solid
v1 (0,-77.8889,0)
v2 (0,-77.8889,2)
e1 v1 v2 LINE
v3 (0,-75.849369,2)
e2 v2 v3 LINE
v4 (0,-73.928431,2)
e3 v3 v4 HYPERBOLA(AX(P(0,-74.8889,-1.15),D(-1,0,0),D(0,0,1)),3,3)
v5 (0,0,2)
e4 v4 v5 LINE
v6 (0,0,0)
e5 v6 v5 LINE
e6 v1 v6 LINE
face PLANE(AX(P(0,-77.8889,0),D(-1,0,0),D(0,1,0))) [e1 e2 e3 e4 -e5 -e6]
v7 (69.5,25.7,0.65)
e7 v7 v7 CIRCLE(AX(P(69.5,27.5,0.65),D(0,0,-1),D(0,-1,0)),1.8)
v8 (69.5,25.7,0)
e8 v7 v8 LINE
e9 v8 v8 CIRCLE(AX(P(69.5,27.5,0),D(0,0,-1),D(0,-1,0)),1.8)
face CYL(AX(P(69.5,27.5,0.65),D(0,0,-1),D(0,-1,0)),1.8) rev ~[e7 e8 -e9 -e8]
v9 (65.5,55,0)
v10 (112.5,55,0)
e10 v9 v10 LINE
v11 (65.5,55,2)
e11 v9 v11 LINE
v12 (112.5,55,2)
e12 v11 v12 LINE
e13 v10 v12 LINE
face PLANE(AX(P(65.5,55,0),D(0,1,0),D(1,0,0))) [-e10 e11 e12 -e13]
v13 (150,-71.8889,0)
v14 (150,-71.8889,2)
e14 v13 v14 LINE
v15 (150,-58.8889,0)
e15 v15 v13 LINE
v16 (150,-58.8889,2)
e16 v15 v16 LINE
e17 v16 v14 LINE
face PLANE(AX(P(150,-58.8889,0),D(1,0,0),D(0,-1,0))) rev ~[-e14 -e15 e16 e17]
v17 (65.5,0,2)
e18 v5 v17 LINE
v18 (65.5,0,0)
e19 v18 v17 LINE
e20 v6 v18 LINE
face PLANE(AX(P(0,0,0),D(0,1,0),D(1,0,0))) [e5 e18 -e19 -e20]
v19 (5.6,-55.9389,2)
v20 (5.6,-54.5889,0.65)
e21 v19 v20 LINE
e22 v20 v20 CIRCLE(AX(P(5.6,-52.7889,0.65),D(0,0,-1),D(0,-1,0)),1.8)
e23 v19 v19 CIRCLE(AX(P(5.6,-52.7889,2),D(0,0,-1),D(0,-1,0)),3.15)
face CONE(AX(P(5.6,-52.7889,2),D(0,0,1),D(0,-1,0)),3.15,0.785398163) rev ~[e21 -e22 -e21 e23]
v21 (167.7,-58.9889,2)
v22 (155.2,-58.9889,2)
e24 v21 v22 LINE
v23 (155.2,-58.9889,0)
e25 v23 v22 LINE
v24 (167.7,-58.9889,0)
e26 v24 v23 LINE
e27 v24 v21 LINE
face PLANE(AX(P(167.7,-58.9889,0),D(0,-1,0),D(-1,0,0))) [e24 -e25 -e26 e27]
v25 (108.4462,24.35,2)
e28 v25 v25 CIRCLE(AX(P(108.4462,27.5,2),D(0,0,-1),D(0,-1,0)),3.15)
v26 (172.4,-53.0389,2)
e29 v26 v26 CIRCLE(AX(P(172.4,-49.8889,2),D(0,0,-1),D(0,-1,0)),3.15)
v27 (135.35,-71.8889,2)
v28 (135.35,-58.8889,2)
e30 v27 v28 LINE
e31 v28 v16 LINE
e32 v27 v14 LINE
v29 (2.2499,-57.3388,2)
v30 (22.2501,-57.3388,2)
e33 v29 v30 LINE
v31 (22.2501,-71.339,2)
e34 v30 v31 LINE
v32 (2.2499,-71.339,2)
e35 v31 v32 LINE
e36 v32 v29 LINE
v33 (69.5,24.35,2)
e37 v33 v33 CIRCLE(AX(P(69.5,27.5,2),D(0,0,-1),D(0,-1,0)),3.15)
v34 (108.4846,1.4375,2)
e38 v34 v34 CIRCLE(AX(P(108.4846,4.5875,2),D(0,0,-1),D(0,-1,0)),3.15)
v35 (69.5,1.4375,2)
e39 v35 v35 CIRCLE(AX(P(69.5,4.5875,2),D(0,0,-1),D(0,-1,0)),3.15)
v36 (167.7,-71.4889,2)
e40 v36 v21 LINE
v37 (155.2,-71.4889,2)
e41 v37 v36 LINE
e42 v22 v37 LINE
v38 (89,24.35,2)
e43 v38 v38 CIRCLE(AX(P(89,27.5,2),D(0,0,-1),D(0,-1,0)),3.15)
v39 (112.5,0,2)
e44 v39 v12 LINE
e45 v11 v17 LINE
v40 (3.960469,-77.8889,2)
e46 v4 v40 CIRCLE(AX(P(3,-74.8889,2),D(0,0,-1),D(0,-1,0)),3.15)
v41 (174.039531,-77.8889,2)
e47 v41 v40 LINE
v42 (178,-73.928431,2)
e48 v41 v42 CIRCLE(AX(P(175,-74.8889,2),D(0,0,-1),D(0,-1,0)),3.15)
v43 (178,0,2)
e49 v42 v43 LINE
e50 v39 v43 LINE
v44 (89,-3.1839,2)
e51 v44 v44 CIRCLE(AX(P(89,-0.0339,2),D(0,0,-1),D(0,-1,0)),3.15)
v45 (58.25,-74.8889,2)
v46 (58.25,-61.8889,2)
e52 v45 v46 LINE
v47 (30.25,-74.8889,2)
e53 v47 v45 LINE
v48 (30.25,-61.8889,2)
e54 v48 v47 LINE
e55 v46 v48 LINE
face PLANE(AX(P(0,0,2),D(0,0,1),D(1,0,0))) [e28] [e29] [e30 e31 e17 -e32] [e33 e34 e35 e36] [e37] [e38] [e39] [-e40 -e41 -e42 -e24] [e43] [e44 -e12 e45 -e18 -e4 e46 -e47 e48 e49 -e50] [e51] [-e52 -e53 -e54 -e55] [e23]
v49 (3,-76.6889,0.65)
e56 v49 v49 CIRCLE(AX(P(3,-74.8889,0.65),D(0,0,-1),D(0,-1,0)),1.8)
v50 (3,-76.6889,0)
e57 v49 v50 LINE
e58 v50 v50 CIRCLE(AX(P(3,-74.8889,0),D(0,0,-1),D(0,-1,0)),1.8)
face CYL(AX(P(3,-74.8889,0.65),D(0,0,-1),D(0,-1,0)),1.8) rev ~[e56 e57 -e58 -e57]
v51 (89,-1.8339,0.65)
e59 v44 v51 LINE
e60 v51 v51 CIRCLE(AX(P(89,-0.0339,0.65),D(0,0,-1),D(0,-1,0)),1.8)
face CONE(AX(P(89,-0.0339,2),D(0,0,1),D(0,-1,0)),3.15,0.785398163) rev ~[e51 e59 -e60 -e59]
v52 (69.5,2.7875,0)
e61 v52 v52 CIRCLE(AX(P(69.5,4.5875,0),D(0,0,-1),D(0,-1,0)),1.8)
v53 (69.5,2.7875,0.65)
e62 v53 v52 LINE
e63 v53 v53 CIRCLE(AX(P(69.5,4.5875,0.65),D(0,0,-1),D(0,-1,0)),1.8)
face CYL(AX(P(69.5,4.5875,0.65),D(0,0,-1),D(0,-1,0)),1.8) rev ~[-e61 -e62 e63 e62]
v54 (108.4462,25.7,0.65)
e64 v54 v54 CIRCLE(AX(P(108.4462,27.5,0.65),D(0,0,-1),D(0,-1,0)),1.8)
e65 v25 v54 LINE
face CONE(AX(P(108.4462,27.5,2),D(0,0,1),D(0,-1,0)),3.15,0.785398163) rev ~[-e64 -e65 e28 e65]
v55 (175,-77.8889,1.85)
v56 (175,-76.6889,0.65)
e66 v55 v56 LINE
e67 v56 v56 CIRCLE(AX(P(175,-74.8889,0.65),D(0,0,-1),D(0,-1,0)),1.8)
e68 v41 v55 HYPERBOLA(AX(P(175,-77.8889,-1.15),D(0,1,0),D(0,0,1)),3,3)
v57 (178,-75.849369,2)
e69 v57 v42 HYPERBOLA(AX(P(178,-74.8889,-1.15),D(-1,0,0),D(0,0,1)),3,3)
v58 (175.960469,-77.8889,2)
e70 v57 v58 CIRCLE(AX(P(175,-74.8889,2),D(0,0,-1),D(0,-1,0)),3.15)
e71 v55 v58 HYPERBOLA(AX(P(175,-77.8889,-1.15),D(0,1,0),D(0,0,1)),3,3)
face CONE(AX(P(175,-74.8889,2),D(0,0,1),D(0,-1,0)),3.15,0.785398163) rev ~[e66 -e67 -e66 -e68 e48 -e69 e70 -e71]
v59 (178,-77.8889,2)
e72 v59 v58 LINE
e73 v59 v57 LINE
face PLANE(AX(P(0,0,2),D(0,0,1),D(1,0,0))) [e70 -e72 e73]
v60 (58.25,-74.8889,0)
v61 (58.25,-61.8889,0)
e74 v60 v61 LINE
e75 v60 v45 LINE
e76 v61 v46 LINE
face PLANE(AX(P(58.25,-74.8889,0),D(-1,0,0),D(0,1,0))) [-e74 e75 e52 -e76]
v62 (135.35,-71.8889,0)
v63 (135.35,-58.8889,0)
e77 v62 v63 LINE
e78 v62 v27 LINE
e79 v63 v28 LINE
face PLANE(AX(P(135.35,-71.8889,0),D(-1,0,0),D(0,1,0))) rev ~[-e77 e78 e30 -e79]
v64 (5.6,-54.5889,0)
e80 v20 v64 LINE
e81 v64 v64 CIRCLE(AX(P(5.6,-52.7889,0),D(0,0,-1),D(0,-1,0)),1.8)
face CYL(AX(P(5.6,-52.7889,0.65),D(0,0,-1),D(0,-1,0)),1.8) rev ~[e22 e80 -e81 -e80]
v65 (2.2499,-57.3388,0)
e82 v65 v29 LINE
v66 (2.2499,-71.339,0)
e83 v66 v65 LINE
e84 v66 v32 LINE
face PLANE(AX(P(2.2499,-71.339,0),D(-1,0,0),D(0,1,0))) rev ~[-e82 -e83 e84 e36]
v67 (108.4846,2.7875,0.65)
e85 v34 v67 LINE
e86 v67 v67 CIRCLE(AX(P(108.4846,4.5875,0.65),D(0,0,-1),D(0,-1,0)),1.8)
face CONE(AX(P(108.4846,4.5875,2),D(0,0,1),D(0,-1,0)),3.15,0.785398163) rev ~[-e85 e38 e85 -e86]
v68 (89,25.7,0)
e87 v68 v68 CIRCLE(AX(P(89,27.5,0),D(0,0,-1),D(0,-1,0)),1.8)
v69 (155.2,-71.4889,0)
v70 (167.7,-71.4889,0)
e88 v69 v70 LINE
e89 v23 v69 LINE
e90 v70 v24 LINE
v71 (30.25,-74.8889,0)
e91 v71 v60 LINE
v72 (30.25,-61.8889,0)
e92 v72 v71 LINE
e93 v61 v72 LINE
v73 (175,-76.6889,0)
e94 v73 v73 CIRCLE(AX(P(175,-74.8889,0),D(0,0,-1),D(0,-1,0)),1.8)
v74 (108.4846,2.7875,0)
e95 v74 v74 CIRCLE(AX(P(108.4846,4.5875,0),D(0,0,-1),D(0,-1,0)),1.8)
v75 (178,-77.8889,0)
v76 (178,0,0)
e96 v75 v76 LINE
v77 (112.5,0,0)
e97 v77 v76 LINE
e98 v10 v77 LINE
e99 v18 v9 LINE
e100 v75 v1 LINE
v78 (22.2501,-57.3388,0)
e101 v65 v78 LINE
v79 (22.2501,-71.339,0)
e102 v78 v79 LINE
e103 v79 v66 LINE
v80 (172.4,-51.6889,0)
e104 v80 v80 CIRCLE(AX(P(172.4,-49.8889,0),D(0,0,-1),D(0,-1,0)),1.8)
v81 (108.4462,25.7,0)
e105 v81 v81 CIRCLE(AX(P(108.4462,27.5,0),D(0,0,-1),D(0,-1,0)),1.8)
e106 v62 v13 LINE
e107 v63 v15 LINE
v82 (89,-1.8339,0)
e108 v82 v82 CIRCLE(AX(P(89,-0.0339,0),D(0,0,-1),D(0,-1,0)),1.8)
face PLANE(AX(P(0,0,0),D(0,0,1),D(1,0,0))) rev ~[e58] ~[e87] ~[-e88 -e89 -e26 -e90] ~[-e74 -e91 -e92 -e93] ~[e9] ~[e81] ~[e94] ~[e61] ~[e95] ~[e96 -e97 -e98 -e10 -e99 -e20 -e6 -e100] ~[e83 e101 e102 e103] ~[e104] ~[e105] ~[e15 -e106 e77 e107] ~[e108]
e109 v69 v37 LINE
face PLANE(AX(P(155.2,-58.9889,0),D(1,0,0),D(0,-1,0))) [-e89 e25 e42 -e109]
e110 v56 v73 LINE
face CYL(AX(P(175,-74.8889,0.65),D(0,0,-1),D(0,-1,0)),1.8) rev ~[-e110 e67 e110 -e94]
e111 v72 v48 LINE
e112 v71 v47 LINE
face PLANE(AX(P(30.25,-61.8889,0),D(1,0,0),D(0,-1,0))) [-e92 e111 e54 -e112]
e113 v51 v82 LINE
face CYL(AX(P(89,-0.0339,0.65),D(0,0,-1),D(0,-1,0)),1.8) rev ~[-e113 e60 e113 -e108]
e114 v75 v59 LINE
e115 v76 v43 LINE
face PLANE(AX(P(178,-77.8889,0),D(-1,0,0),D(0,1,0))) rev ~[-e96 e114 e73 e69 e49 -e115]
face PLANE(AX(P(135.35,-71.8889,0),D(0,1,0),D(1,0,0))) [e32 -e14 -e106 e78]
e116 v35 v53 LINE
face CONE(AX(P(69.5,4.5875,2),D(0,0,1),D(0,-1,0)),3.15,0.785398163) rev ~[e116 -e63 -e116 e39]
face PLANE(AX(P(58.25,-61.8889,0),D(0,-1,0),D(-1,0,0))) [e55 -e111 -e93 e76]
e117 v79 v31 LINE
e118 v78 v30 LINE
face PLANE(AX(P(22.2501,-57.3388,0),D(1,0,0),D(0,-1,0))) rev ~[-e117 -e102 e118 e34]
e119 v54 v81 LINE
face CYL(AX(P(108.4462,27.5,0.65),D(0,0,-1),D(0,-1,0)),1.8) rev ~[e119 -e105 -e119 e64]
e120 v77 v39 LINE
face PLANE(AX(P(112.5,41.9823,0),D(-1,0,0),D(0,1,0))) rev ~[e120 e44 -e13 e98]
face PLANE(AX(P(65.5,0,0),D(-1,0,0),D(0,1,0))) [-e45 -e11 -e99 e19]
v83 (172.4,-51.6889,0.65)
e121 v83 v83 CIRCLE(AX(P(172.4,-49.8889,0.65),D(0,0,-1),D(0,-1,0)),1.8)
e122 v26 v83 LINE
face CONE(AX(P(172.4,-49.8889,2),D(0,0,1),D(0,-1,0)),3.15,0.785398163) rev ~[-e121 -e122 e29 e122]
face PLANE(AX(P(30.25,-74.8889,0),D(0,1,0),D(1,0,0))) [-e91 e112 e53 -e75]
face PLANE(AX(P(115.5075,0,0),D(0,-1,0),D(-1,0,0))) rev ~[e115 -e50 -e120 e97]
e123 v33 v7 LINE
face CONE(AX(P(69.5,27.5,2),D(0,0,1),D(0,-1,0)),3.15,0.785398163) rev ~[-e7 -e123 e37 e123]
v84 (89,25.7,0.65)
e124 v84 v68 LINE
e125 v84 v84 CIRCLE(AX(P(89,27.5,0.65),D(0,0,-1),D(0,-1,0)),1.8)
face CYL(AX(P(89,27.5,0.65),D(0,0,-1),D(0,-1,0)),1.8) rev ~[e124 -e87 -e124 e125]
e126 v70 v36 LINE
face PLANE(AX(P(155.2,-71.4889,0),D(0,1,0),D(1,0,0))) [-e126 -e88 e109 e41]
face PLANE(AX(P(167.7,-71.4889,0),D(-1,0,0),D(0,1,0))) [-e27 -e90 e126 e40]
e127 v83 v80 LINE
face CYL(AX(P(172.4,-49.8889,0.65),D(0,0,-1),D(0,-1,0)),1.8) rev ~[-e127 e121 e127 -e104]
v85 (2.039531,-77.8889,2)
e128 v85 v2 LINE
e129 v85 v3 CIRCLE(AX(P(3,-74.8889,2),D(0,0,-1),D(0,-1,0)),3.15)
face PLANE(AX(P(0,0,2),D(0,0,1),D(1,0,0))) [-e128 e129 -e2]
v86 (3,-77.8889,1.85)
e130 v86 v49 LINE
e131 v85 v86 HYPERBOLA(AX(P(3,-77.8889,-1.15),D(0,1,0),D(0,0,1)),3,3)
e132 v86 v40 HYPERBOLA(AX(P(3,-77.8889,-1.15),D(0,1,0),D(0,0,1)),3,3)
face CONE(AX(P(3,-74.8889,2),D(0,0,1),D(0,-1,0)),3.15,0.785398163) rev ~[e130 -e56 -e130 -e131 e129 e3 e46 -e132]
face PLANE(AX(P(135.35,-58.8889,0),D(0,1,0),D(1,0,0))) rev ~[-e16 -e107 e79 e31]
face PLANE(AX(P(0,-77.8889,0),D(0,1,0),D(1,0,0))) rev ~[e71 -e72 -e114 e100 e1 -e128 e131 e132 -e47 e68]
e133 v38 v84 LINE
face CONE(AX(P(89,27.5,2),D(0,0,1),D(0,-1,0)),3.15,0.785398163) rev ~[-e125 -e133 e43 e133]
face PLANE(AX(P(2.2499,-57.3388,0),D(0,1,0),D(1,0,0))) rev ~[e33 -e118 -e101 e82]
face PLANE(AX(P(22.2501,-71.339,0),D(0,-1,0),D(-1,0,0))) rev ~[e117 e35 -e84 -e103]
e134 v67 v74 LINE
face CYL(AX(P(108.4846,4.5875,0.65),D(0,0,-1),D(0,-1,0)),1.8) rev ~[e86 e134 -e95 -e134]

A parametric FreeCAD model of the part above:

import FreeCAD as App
import Part
import Sketcher
Q = App.Units.Quantity

doc = App.newDocument("Part")
body = doc.addObject("PartDesign::Body", "Body")

sketch1 = doc.addObject("Sketcher::SketchObject", "Sketch")
body.addObject(sketch1)
sketch1.AttachmentSupport = (doc.XY_Plane, [""])
sketch1.MapMode = "FlatFace"
sketch1.addGeometry([
    Part.LineSegment(App.Vector(0, -78, 0), App.Vector(178, -78, 0)),
    Part.LineSegment(App.Vector(178, -78, 0), App.Vector(178, 0, 0)),
    Part.LineSegment(App.Vector(178, 0, 0), App.Vector(112, 0, 0)),
    Part.LineSegment(App.Vector(112, 0, 0), App.Vector(112, 55, 0)),
    Part.LineSegment(App.Vector(112, 55, 0), App.Vector(66, 55, 0)),
    Part.LineSegment(App.Vector(66, 55, 0), App.Vector(66, 0, 0)),
    Part.LineSegment(App.Vector(66, 0, 0), App.Vector(0, 0, 0)),
    Part.LineSegment(App.Vector(0, 0, 0), App.Vector(0, -78, 0)),
    Part.LineSegment(App.Vector(150, -72, 0), App.Vector(135, -72, 0)),
    Part.LineSegment(App.Vector(135, -72, 0), App.Vector(135, -59, 0)),
    Part.LineSegment(App.Vector(135, -59, 0), App.Vector(150, -59, 0)),
    Part.LineSegment(App.Vector(150, -59, 0), App.Vector(150, -72, 0)),
    Part.LineSegment(App.Vector(22, -71, 0), App.Vector(2, -71, 0)),
    Part.LineSegment(App.Vector(2, -71, 0), App.Vector(2, -57, 0)),
    Part.LineSegment(App.Vector(2, -57, 0), App.Vector(22, -57, 0)),
    Part.LineSegment(App.Vector(22, -57, 0), App.Vector(22, -71, 0)),
    Part.LineSegment(App.Vector(30, -75, 0), App.Vector(30, -62, 0)),
    Part.LineSegment(App.Vector(30, -62, 0), App.Vector(58, -62, 0)),
    Part.LineSegment(App.Vector(58, -62, 0), App.Vector(58, -75, 0)),
    Part.LineSegment(App.Vector(58, -75, 0), App.Vector(30, -75, 0)),
    Part.LineSegment(App.Vector(168, -59, 0), App.Vector(168, -71, 0)),
    Part.LineSegment(App.Vector(168, -71, 0), App.Vector(155, -71, 0)),
    Part.LineSegment(App.Vector(155, -71, 0), App.Vector(155, -59, 0)),
    Part.LineSegment(App.Vector(155, -59, 0), App.Vector(168, -59, 0)),
], False)
sketch1.addConstraint([
    Sketcher.Constraint("Coincident", 0, 2, 1, 1),
    Sketcher.Constraint("Coincident", 1, 2, 2, 1),
    Sketcher.Constraint("Coincident", 2, 2, 3, 1),
    Sketcher.Constraint("Coincident", 3, 2, 4, 1),
    Sketcher.Constraint("Coincident", 4, 2, 5, 1),
    Sketcher.Constraint("Coincident", 5, 2, 6, 1),
    Sketcher.Constraint("Coincident", 6, 2, 7, 1),
    Sketcher.Constraint("Coincident", 7, 2, 0, 1),
    Sketcher.Constraint("Coincident", 8, 2, 9, 1),
    Sketcher.Constraint("Coincident", 9, 2, 10, 1),
    Sketcher.Constraint("Coincident", 10, 2, 11, 1),
    Sketcher.Constraint("Coincident", 11, 2, 8, 1),
    Sketcher.Constraint("Coincident", 12, 2, 13, 1),
    Sketcher.Constraint("Coincident", 13, 2, 14, 1),
    Sketcher.Constraint("Coincident", 14, 2, 15, 1),
    Sketcher.Constraint("Coincident", 15, 2, 12, 1),
    Sketcher.Constraint("Coincident", 16, 2, 17, 1),
    Sketcher.Constraint("Coincident", 17, 2, 18, 1),
    Sketcher.Constraint("Coincident", 18, 2, 19, 1),
    Sketcher.Constraint("Coincident", 19, 2, 16, 1),
    Sketcher.Constraint("Coincident", 20, 2, 21, 1),
    Sketcher.Constraint("Coincident", 21, 2, 22, 1),
    Sketcher.Constraint("Coincident", 22, 2, 23, 1),
    Sketcher.Constraint("Coincident", 23, 2, 20, 1),
    Sketcher.Constraint("Horizontal", 0),
    Sketcher.Constraint("Vertical", 1),
    Sketcher.Constraint("Horizontal", 2),
    Sketcher.Constraint("Vertical", 3),
    Sketcher.Constraint("Horizontal", 4),
    Sketcher.Constraint("Vertical", 5),
    Sketcher.Constraint("Horizontal", 6),
    Sketcher.Constraint("Vertical", 7),
    Sketcher.Constraint("Horizontal", 8),
    Sketcher.Constraint("Vertical", 9),
    Sketcher.Constraint("Horizontal", 10),
    Sketcher.Constraint("Vertical", 11),
    Sketcher.Constraint("Horizontal", 12),
    Sketcher.Constraint("Vertical", 13),
    Sketcher.Constraint("Horizontal", 14),
    Sketcher.Constraint("Vertical", 15),
    Sketcher.Constraint("Vertical", 16),
    Sketcher.Constraint("Horizontal", 17),
    Sketcher.Constraint("Vertical", 18),
    Sketcher.Constraint("Horizontal", 19),
    Sketcher.Constraint("Vertical", 20),
    Sketcher.Constraint("Horizontal", 21),
    Sketcher.Constraint("Vertical", 22),
    Sketcher.Constraint("Horizontal", 23),
    Sketcher.Constraint("Coincident", 6, 2, -1, 1),
    Sketcher.Constraint("PointOnObject", 1, 2, -1),
    Sketcher.Constraint("Equal", 2, 6),
    Sketcher.Constraint("Equal", 11, 16),
    Sketcher.Constraint("Equal", 23, 20),
    Sketcher.Constraint("DistanceX", 0, 1, 0, 2, Q("178 mm")),
    Sketcher.Constraint("DistanceX", 4, 2, 4, 1, Q("47 mm")),
    Sketcher.Constraint("DistanceX", 17, 1, 17, 2, Q("28 mm")),
    Sketcher.Constraint("DistanceY", 3, 1, 3, 2, Q("55 mm")),
    Sketcher.Constraint("DistanceY", 9, 1, 9, 2, Q("13 mm")),
    Sketcher.Constraint("DistanceX", 21, 2, 21, 1, Q("12.5 mm")),
    Sketcher.Constraint("DistanceX", -1, 1, 10, 2, Q("150 mm")),
    Sketcher.Constraint("DistanceY", 0, 2, 8, 2, Q("6 mm")),
    Sketcher.Constraint("DistanceX", 14, 2, 16, 2, Q("8 mm")),
    Sketcher.Constraint("DistanceX", 13, 2, 16, 2, Q("28 mm")),
    Sketcher.Constraint("DistanceY", 7, 2, 16, 2, Q("16 mm")),
    Sketcher.Constraint("DistanceX", 8, 2, 8, 1, Q("14.65 mm")),
    Sketcher.Constraint("DistanceX", -1, 1, 20, 2, Q("167.7 mm")),
    Sketcher.Constraint("DistanceX", 12, 2, 8, 2, Q("133.1 mm")),
    Sketcher.Constraint("DistanceY", 0, 2, 20, 2, Q("6.4 mm")),
    Sketcher.Constraint("DistanceY", 1, 1, 1, 2, Q("77.889 mm")),
    Sketcher.Constraint("DistanceY", 7, 2, 12, 2, Q("6.55 mm")),
    Sketcher.Constraint("DistanceY", 7, 2, 13, 2, Q("20.55 mm")),
])
pad1 = doc.addObject("PartDesign::Pad", "Pad")
body.addObject(pad1)
pad1.Profile = sketch1
pad1.Length = 2

sketch2 = doc.addObject("Sketcher::SketchObject", "Sketch001")
body.addObject(sketch2)
sketch2.AttachmentSupport = (doc.XY_Plane, [""])
sketch2.MapMode = "FlatFace"
sketch2.AttachmentOffset = App.Placement(App.Vector(0, 0, 2), App.Rotation())
sketch2.addGeometry([
    Part.Circle(App.Vector(3, -74.9, 0), App.Vector(0, 0, 1), 1.8),
    Part.Circle(App.Vector(5.6, -52.8, 0), App.Vector(0, 0, 1), 1.8),
    Part.Circle(App.Vector(175, -74.9, 0), App.Vector(0, 0, 1), 1.8),
    Part.Circle(App.Vector(172.4, -49.9, 0), App.Vector(0, 0, 1), 1.8),
    Part.Circle(App.Vector(89, 0, 0), App.Vector(0, 0, 1), 1.8),
    Part.Circle(App.Vector(69.5, 4.6, 0), App.Vector(0, 0, 1), 1.8),
    Part.Circle(App.Vector(108.5, 4.6, 0), App.Vector(0, 0, 1), 1.8),
    Part.Circle(App.Vector(89, 27.5, 0), App.Vector(0, 0, 1), 1.8),
    Part.Circle(App.Vector(69.5, 27.5, 0), App.Vector(0, 0, 1), 1.8),
    Part.Circle(App.Vector(108.4, 27.5, 0), App.Vector(0, 0, 1), 1.8),
], False)
sketch2.addConstraint([
    Sketcher.Constraint("Equal", 0, 1),
    Sketcher.Constraint("Equal", 1, 2),
    Sketcher.Constraint("Equal", 2, 3),
    Sketcher.Constraint("Equal", 3, 4),
    Sketcher.Constraint("Equal", 4, 5),
    Sketcher.Constraint("Equal", 5, 6),
    Sketcher.Constraint("Equal", 6, 7),
    Sketcher.Constraint("Equal", 7, 8),
    Sketcher.Constraint("Equal", 8, 9),
    Sketcher.Constraint("Horizontal", 0, 3, 2, 3),
    Sketcher.Constraint("Horizontal", 5, 3, 6, 3),
    Sketcher.Constraint("Horizontal", 7, 3, 8, 3),
    Sketcher.Constraint("Horizontal", 8, 3, 9, 3),
    Sketcher.Constraint("Vertical", 4, 3, 7, 3),
    Sketcher.Constraint("Vertical", 5, 3, 8, 3),
    Sketcher.Constraint("Diameter", 0, Q("3.6 mm")),
    Sketcher.Constraint("DistanceX", -1, 1, 0, 3, Q("3 mm")),
    Sketcher.Constraint("DistanceX", -1, 1, 2, 3, Q("175 mm")),
    Sketcher.Constraint("DistanceX", -1, 1, 4, 3, Q("89 mm")),
    Sketcher.Constraint("DistanceY", 2, 3, 3, 3, Q("25 mm")),
    Sketcher.Constraint("DistanceX", -1, 1, 1, 3, Q("5.6 mm")),
    Sketcher.Constraint("DistanceX", -1, 1, 3, 3, Q("172.4 mm")),
    Sketcher.Constraint("DistanceX", -1, 1, 5, 3, Q("69.5 mm")),
    Sketcher.Constraint("DistanceY", -1, 1, 7, 3, Q("27.5 mm")),
    Sketcher.Constraint("DistanceY", 0, 3, 1, 3, Q("22.1 mm")),
    Sketcher.Constraint("DistanceY", 0, 3, -1, 1, Q("74.889 mm")),
    Sketcher.Constraint("DistanceY", 4, 3, -1, 1, Q("0.034 mm")),
    Sketcher.Constraint("DistanceY", -1, 1, 5, 3, Q("4.5875 mm")),
    Sketcher.Constraint("DistanceX", -1, 1, 6, 3, Q("108.4846 mm")),
    Sketcher.Constraint("DistanceX", -1, 1, 9, 3, Q("108.4462 mm")),
])
doc.recompute()
hole = doc.addObject("PartDesign::Hole", "Hole")
body.addObject(hole)
hole.Profile = sketch2
hole.ThreadType = "None"
hole.Diameter = 3.6
hole.DepthType = "ThroughAll"
hole.HoleCutType = "Countersink"
hole.HoleCutDiameter = 6.3
hole.HoleCutCountersinkAngle = 90

doc.recompute()
